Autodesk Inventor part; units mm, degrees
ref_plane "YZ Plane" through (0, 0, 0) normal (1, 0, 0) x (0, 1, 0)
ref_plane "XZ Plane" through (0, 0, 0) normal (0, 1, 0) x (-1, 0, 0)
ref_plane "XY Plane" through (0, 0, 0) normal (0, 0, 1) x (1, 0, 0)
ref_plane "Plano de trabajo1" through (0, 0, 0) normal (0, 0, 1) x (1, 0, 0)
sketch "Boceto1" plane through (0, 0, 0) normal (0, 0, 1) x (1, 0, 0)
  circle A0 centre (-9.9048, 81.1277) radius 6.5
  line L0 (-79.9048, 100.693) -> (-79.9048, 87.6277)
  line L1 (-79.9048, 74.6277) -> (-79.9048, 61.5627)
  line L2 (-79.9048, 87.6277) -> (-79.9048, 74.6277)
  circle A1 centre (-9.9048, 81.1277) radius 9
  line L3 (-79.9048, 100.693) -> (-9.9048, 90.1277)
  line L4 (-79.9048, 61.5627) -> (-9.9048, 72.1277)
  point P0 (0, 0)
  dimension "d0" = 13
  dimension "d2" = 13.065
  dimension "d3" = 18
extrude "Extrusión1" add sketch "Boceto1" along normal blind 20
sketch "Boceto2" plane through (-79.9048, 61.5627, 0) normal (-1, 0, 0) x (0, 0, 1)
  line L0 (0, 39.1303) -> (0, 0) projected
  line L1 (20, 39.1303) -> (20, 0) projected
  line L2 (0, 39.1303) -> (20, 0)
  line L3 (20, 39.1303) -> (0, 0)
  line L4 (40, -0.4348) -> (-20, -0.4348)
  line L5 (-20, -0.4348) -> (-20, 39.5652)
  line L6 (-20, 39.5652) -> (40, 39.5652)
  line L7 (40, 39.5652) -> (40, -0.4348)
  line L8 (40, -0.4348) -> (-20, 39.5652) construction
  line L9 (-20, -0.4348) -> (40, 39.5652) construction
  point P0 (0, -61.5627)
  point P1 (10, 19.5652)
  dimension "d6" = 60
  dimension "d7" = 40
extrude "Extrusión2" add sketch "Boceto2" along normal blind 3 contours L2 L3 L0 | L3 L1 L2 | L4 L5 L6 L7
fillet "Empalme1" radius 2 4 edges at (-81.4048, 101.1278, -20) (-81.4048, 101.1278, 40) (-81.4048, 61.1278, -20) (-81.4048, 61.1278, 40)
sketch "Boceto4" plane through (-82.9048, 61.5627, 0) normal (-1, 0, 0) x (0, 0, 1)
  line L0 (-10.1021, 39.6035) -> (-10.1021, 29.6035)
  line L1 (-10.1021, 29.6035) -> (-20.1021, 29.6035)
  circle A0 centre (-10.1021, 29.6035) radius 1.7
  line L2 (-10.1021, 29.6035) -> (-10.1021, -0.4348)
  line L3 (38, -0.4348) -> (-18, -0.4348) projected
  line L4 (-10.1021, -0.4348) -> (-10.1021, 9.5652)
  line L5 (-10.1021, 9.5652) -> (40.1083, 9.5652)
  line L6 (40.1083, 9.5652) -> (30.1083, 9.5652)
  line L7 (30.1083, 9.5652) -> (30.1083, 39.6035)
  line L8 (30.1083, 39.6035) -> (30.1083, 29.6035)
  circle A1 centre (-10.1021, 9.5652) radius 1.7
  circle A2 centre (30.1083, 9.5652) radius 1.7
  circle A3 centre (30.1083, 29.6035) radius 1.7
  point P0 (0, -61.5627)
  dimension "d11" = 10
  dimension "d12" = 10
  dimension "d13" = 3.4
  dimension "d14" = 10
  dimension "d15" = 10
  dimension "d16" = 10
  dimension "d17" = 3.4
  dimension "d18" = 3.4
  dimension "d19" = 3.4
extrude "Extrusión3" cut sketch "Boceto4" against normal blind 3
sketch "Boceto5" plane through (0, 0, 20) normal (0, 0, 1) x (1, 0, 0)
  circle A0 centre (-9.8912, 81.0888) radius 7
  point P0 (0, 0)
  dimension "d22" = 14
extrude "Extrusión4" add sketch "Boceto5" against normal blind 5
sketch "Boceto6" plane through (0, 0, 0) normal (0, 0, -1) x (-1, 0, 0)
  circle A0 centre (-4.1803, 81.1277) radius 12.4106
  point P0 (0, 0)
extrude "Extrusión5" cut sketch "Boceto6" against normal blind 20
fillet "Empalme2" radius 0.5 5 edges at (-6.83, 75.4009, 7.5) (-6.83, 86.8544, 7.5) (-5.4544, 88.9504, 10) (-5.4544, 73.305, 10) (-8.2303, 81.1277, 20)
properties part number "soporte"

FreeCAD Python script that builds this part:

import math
import FreeCAD as App
import Part
import Sketcher
from FreeCAD import Vector
Q = App.Units.Quantity


def edges_at(feature, points):
    """Names of the edges that pass closest to the given points."""
    edges = feature.Shape.Edges
    near = lambda p: min(range(len(edges)), key=lambda i: edges[i].distToShape(Part.Vertex(*p))[0])
    return sorted({f"Edge{near(p) + 1}" for p in points})

doc = App.newDocument("Part")
params = doc.addObject("Spreadsheet::Sheet", "Params")
for row, (alias, value) in enumerate([
    ("sketch1_diameter", "13 mm"),
    ("sketch1_radius", "9 mm"),
    ("pad1_length", "20 mm"),
    ("sketch2_width", "40 mm"),
    ("sketch2_height", "60 mm"),
    ("pad2_length", "3 mm"),
    ("fillet_radius", "2 mm"),
    ("sketch3_diameter", "3.4 mm"),
    ("pocket1_length", "3 mm"),
    ("sketch4_diameter", "14 mm"),
    ("pad3_length", "5 mm"),
    ("pocket2_length", "20 mm"),
    ("fillet2_radius", "0.5 mm"),
], start=1):
    params.set(f"A{row}", alias)
    params.set(f"B{row}", "=" + value)
    params.setAlias(f"B{row}", alias)

body = doc.addObject("PartDesign::Body", "Body")

sketch1 = body.newObject("Sketcher::SketchObject", "Sketch")
sketch1.AttachmentSupport = (doc.getObject("XY_Plane"), [""])
sketch1.MapMode = "FlatFace"
sketch1.addGeometry([
    Part.LineSegment(Vector(-9.9048, 90.1277, 0), Vector(-79.9048, 100.693, 0)),
    Part.LineSegment(Vector(-79.9048, 100.693, 0), Vector(-79.9048, 61.5627, 0)),
    Part.LineSegment(Vector(-79.9048, 61.5627, 0), Vector(-9.9048, 72.1277, 0)),
    Part.ArcOfCircle(Part.Circle(Vector(-9.9048, 81.1277, 0), Vector(0, 0, 1), 9), math.radians(-90), math.radians(90)),
    Part.Circle(Vector(-9.9048, 81.1277, 0), Vector(0, 0, 1), 6.5),
], False)
sketch1.addConstraint([
    Sketcher.Constraint("Coincident", 0, 2, 1, 1),
    Sketcher.Constraint("Coincident", 1, 2, 2, 1),
    Sketcher.Constraint("Coincident", 2, 2, 3, 1),
    Sketcher.Constraint("Coincident", 3, 2, 0, 1),
    Sketcher.Constraint("Vertical", 1),
    Sketcher.Constraint("Coincident", 4, 3, 3, 3),
    Sketcher.Constraint("Vertical", 4, 3, 2, 2),
    Sketcher.Constraint("Vertical", 2, 2, 3, 2),
    Sketcher.Constraint("Equal", 0, 2),
    Sketcher.Constraint("Diameter", 4, Q("13 mm")),
    Sketcher.Constraint("Radius", 3, Q("9 mm")),
    Sketcher.Constraint("DistanceX", 0, 2, 3, 3, Q("70 mm")),
    Sketcher.Constraint("DistanceY", 1, 2, 1, 1, Q("39.1303 mm")),
    Sketcher.Constraint("DistanceY", -1, 1, 0, 2, Q("100.693 mm")),
    Sketcher.Constraint("DistanceX", 3, 3, -1, 1, Q("9.9048 mm")),
])
sketch1.setExpression("Constraints[9]", "Params.sketch1_diameter")
sketch1.setExpression("Constraints[10]", "Params.sketch1_radius")
pad1 = body.newObject("PartDesign::Pad", "Pad")
pad1.Profile = sketch1
pad1.setExpression("Length", "Params.pad1_length")

sketch2 = body.newObject("Sketcher::SketchObject", "Sketch001")
sketch2.AttachmentSupport = (doc.getObject("YZ_Plane"), [""])
sketch2.MapMode = "FlatFace"
sketch2.AttachmentOffset = App.Placement(Vector(0, 0, -79.9048), App.Rotation())
sketch2.addGeometry([
    Part.LineSegment(Vector(61.1279, -20, 0), Vector(61.1279, 40, 0)),
    Part.LineSegment(Vector(61.1279, 40, 0), Vector(101.1279, 40, 0)),
    Part.LineSegment(Vector(101.1279, 40, 0), Vector(101.1279, -20, 0)),
    Part.LineSegment(Vector(101.1279, -20, 0), Vector(61.1279, -20, 0)),
], False)
sketch2.addConstraint([
    Sketcher.Constraint("Coincident", 0, 2, 1, 1),
    Sketcher.Constraint("Coincident", 1, 2, 2, 1),
    Sketcher.Constraint("Coincident", 2, 2, 3, 1),
    Sketcher.Constraint("Coincident", 3, 2, 0, 1),
    Sketcher.Constraint("Vertical", 0),
    Sketcher.Constraint("Horizontal", 1),
    Sketcher.Constraint("Vertical", 2),
    Sketcher.Constraint("Horizontal", 3),
    Sketcher.Constraint("DistanceX", 1, 1, 1, 2, Q("40 mm")),
    Sketcher.Constraint("DistanceY", 0, 1, 0, 2, Q("60 mm")),
    Sketcher.Constraint("DistanceY", -1, 1, 0, 2, Q("40 mm")),
    Sketcher.Constraint("DistanceX", -1, 1, 0, 2, Q("61.128 mm")),
])
sketch2.setExpression("Constraints[8]", "Params.sketch2_width")
sketch2.setExpression("Constraints[9]", "Params.sketch2_height")
pad2 = body.newObject("PartDesign::Pad", "Pad001")
pad2.Profile = sketch2
pad2.setExpression("Length", "Params.pad2_length")
pad2.Reversed = True
doc.recompute()

fillet = body.newObject("PartDesign::Fillet", "Fillet")
fillet.Base = (pad2, edges_at(pad2, [
    (-81.405, 101.128, -20),
    (-81.405, 101.128, 40),
    (-81.405, 61.128, -20),
    (-81.405, 61.128, 40),
]))
fillet.setExpression("Radius", "Params.fillet_radius")

sketch3 = body.newObject("Sketcher::SketchObject", "Sketch002")
sketch3.AttachmentSupport = (doc.getObject("YZ_Plane"), [""])
sketch3.MapMode = "FlatFace"
sketch3.AttachmentOffset = App.Placement(Vector(0, 0, -82.9048), App.Rotation())
sketch3.addGeometry([
    Part.Circle(Vector(91.1662, -10.1021, 0), Vector(0, 0, 1), 1.7),
    Part.Circle(Vector(91.1662, 30.1083, 0), Vector(0, 0, 1), 1.7),
    Part.Circle(Vector(71.1279, 30.1083, 0), Vector(0, 0, 1), 1.7),
    Part.Circle(Vector(71.1279, -10.1021, 0), Vector(0, 0, 1), 1.7),
], False)
sketch3.addConstraint([
    Sketcher.Constraint("Equal", 0, 1),
    Sketcher.Constraint("Equal", 1, 2),
    Sketcher.Constraint("Equal", 2, 3),
    Sketcher.Constraint("Horizontal", 1, 3, 2, 3),
    Sketcher.Constraint("Horizontal", 0, 3, 3, 3),
    Sketcher.Constraint("Vertical", 0, 3, 1, 3),
    Sketcher.Constraint("Vertical", 2, 3, 3, 3),
    Sketcher.Constraint("Diameter", 0, Q("3.4 mm")),
    Sketcher.Constraint("DistanceY", 0, 3, -1, 1, Q("10.102 mm")),
    Sketcher.Constraint("DistanceX", -1, 1, 2, 3, Q("71.128 mm")),
    Sketcher.Constraint("DistanceX", -1, 1, 0, 3, Q("91.1662 mm")),
    Sketcher.Constraint("DistanceY", -1, 1, 1, 3, Q("30.1083 mm")),
])
sketch3.setExpression("Constraints[7]", "Params.sketch3_diameter")
pocket1 = body.newObject("PartDesign::Pocket", "Pocket")
pocket1.Profile = sketch3
pocket1.setExpression("Length", "Params.pocket1_length")
pocket1.Reversed = True

sketch4 = body.newObject("Sketcher::SketchObject", "Sketch003")
sketch4.AttachmentSupport = (doc.getObject("XY_Plane"), [""])
sketch4.MapMode = "FlatFace"
sketch4.AttachmentOffset = App.Placement(Vector(0, 0, 20), App.Rotation())
sketch4.addGeometry(Part.Circle(Vector(-9.8912, 81.0888, 0), Vector(0, 0, 1), 7), False)
sketch4.addConstraint([
    Sketcher.Constraint("Diameter", 0, Q("14 mm")),
    Sketcher.Constraint("DistanceX", 0, 3, -1, 1, Q("9.8912 mm")),
    Sketcher.Constraint("DistanceY", -1, 1, 0, 3, Q("81.0888 mm")),
])
sketch4.setExpression("Constraints[0]", "Params.sketch4_diameter")
pad3 = body.newObject("PartDesign::Pad", "Pad002")
pad3.Profile = sketch4
pad3.setExpression("Length", "Params.pad3_length")
pad3.Reversed = True

sketch5 = body.newObject("Sketcher::SketchObject", "Sketch004")
sketch5.AttachmentSupport = (doc.getObject("XY_Plane"), [""])
sketch5.MapMode = "FlatFace"
sketch5.addGeometry(Part.Circle(Vector(4.1803, 81.1277, 0), Vector(0, 0, 1), 12.4106), False)
sketch5.addConstraint([
    Sketcher.Constraint("Diameter", 0, Q("24.8212 mm")),
    Sketcher.Constraint("DistanceX", -1, 1, 0, 3, Q("4.1803 mm")),
    Sketcher.Constraint("DistanceY", -1, 1, 0, 3, Q("81.1277 mm")),
])
pocket2 = body.newObject("PartDesign::Pocket", "Pocket001")
pocket2.Profile = sketch5
pocket2.setExpression("Length", "Params.pocket2_length")
pocket2.Reversed = True
doc.recompute()

fillet2 = body.newObject("PartDesign::Fillet", "Fillet001")
fillet2.Base = (pocket2, edges_at(pocket2, [
    (-6.83, 75.401, 7.5),
    (-6.83, 86.854, 7.5),
    (-5.454, 88.95, 10),
    (-5.454, 73.305, 10),
    (-8.23, 81.128, 20),
]))
fillet2.setExpression("Radius", "Params.fillet2_radius")

doc.recompute()
